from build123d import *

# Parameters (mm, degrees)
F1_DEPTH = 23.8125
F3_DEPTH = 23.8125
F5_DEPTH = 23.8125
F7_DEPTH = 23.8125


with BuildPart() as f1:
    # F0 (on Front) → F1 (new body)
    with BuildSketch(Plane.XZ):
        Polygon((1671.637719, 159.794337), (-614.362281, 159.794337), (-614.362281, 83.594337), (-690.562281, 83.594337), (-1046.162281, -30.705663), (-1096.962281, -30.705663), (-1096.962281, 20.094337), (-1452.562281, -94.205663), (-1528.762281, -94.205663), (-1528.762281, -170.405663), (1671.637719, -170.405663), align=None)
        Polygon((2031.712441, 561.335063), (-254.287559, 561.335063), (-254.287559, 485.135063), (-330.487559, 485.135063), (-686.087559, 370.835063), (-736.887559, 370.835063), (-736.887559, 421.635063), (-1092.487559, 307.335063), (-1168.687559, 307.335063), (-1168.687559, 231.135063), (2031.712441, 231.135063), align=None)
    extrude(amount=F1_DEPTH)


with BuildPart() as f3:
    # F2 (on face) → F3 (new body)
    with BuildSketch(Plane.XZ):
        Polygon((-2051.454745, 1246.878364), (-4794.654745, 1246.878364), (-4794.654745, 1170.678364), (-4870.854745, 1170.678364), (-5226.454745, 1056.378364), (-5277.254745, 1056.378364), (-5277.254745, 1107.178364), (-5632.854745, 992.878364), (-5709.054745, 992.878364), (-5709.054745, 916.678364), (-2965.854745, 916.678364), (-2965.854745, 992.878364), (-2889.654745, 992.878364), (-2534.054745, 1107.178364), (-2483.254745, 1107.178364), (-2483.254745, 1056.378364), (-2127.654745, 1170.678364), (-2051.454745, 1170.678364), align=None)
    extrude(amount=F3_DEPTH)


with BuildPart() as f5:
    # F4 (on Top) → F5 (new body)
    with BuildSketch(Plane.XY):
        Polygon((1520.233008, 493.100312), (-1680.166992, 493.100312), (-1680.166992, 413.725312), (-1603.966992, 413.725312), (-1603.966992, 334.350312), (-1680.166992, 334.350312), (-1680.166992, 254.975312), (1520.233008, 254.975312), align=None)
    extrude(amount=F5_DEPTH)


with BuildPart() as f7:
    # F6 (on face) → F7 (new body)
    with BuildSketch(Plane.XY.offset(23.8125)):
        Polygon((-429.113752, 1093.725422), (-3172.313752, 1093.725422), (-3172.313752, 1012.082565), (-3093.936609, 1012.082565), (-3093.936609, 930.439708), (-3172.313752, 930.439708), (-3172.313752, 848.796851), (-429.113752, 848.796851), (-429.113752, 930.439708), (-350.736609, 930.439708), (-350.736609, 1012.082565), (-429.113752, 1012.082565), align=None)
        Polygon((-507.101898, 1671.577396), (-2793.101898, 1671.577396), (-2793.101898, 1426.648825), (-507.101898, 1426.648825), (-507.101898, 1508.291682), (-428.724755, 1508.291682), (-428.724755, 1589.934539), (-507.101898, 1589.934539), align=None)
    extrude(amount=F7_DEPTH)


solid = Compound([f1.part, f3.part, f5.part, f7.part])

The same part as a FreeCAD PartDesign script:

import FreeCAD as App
import Part
import Sketcher

V = App.Vector
Q = App.Units.Quantity


def add_polygon(sketch, points):
    """Adds a closed chain of lines whose ends are joined by coincident constraints."""
    first, n = sketch.GeometryCount, len(points)
    for a, b in zip(points, points[1:] + points[:1]):
        sketch.addGeometry(Part.LineSegment(App.Vector(*a, 0), App.Vector(*b, 0)), False)
    for i in range(n):
        sketch.addConstraint(Sketcher.Constraint("Coincident", first + i, 2, first + (i + 1) % n, 1))

doc = App.newDocument("Part")
params = doc.addObject("Spreadsheet::Sheet", "Params")
for row, (alias, value) in enumerate([
    ("sketch1_width", "90 in"),
    ("sketch1_width2", "3 in"),
    ("sketch1_width3", "2 in"),
    ("sketch1_width4", "126 in"),
    ("sketch1_height", "13 in"),
    ("pad1_length", "0.9375 in"),
    ("sketch2_width", "108 in"),
    ("sketch2_width2", "3 in"),
    ("sketch2_width3", "2 in"),
    ("pad2_length", "0.9375 in"),
    ("sketch3_width", "126 in"),
    ("sketch3_width2", "3 in"),
    ("sketch3_height", "3.125 in"),
    ("pad3_length", "0.9375 in"),
    ("sketch4_width", "108 in"),
    ("sketch4_width2", "90 in"),
    ("pad4_length", "0.9375 in"),
], start=1):
    params.set(f"A{row}", alias)
    params.set(f"B{row}", "=" + value)
    params.setAlias(f"B{row}", alias)

body = doc.addObject("PartDesign::Body", "Body")
body.AllowCompound = True

# Sketch on XZ plane
sketch1 = doc.addObject("Sketcher::SketchObject", "Sketch")
body.addObject(sketch1)
sketch1.AttachmentSupport = (doc.XZ_Plane, [""])
sketch1.MapMode = "FlatFace"
add_polygon(sketch1, [(1672, 160), (-614, 160), (-614, 84), (-691, 84), (-1046, -31), (-1097, -31), (-1097, 20), (-1453, -94), (-1529, -94), (-1529, -170), (1672, -170)])  # lines 0-10
add_polygon(sketch1, [(2032, 561), (-254, 561), (-254, 485), (-330, 485), (-686, 371), (-737, 371), (-737, 422), (-1092, 307), (-1169, 307), (-1169, 231), (2032, 231)])  # lines 11-21
sketch1.addConstraint(Sketcher.Constraint("Horizontal", 0))
sketch1.addConstraint(Sketcher.Constraint("Vertical", 1))
sketch1.addConstraint(Sketcher.Constraint("Horizontal", 2))
sketch1.addConstraint(Sketcher.Constraint("Horizontal", 4))
sketch1.addConstraint(Sketcher.Constraint("Vertical", 5))
sketch1.addConstraint(Sketcher.Constraint("Horizontal", 7))
sketch1.addConstraint(Sketcher.Constraint("Vertical", 8))
sketch1.addConstraint(Sketcher.Constraint("Horizontal", 9))
sketch1.addConstraint(Sketcher.Constraint("Vertical", 10))
sketch1.addConstraint(Sketcher.Constraint("Horizontal", 11))
sketch1.addConstraint(Sketcher.Constraint("Vertical", 12))
sketch1.addConstraint(Sketcher.Constraint("Horizontal", 13))
sketch1.addConstraint(Sketcher.Constraint("Horizontal", 15))
sketch1.addConstraint(Sketcher.Constraint("Vertical", 16))
sketch1.addConstraint(Sketcher.Constraint("Horizontal", 18))
sketch1.addConstraint(Sketcher.Constraint("Vertical", 19))
sketch1.addConstraint(Sketcher.Constraint("Horizontal", 20))
sketch1.addConstraint(Sketcher.Constraint("Vertical", 21))
sketch1.addConstraint(Sketcher.Constraint("Parallel", 3, 6))
sketch1.addConstraint(Sketcher.Constraint("Parallel", 6, 14))
sketch1.addConstraint(Sketcher.Constraint("Parallel", 14, 17))
sketch1.addConstraint(Sketcher.Constraint("Equal", 2, 7))
sketch1.addConstraint(Sketcher.Constraint("Equal", 0, 11))
sketch1.addConstraint(Sketcher.Constraint("Equal", 7, 13))
sketch1.addConstraint(Sketcher.Constraint("Equal", 4, 15))
sketch1.addConstraint(Sketcher.Constraint("Equal", 13, 18))
sketch1.addConstraint(Sketcher.Constraint("Equal", 9, 20))
sketch1.addConstraint(Sketcher.Constraint("Equal", 18, 1))
sketch1.addConstraint(Sketcher.Constraint("Equal", 15, 5))
sketch1.addConstraint(Sketcher.Constraint("Equal", 1, 8))
sketch1.addConstraint(Sketcher.Constraint("Equal", 8, 12))
sketch1.addConstraint(Sketcher.Constraint("Equal", 5, 16))
sketch1.addConstraint(Sketcher.Constraint("Equal", 12, 19))
sketch1.addConstraint(Sketcher.Constraint("Equal", 3, 6))
sketch1.addConstraint(Sketcher.Constraint("Equal", 6, 14))
sketch1.addConstraint(Sketcher.Constraint("DistanceX", 0, 2, 0, 1, Q("90 in")))
sketch1.addConstraint(Sketcher.Constraint("DistanceX", 2, 2, 2, 1, Q("3 in")))
sketch1.addConstraint(Sketcher.Constraint("DistanceX", 4, 2, 4, 1, Q("2 in")))
sketch1.addConstraint(Sketcher.Constraint("DistanceX", 9, 1, 9, 2, Q("126 in")))
sketch1.addConstraint(Sketcher.Constraint("DistanceY", 10, 1, 10, 2, Q("13 in")))
sketch1.addConstraint(Sketcher.Constraint("DistanceX", 0, 2, -1, 1, 614.362281))
sketch1.addConstraint(Sketcher.Constraint("DistanceX", 11, 2, -1, 1, 254.287559))
sketch1.addConstraint(Sketcher.Constraint("DistanceY", -1, 1, 0, 2, 159.794337))
sketch1.addConstraint(Sketcher.Constraint("DistanceY", -1, 1, 11, 2, 561.335063))
sketch1.setExpression("Constraints[57]", "Params.sketch1_width")
sketch1.setExpression("Constraints[58]", "Params.sketch1_width2")
sketch1.setExpression("Constraints[59]", "Params.sketch1_width3")
sketch1.setExpression("Constraints[60]", "Params.sketch1_width4")
sketch1.setExpression("Constraints[61]", "Params.sketch1_height")
pad1 = doc.addObject("PartDesign::Pad", "Pad")
body.addObject(pad1)
pad1.Profile = sketch1
pad1.setExpression("Length", "Params.pad1_length")
body2 = doc.addObject("PartDesign::Body", "Body001")

# Sketch on XZ plane
sketch2 = doc.addObject("Sketcher::SketchObject", "Sketch001")
body2.addObject(sketch2)
sketch2.AttachmentSupport = (doc.getObject("XZ_Plane001"), [""])
sketch2.MapMode = "FlatFace"
add_polygon(sketch2, [(-2051, 1247), (-4795, 1247), (-4795, 1171), (-4871, 1171), (-5226, 1056), (-5277, 1056), (-5277, 1107), (-5633, 993), (-5709, 993), (-5709, 917), (-2966, 917), (-2966, 993), (-2890, 993), (-2534, 1107), (-2483, 1107), (-2483, 1056), (-2128, 1171), (-2051, 1171)])  # lines 0-17
sketch2.addConstraint(Sketcher.Constraint("Horizontal", 0))
sketch2.addConstraint(Sketcher.Constraint("Vertical", 1))
sketch2.addConstraint(Sketcher.Constraint("Horizontal", 2))
sketch2.addConstraint(Sketcher.Constraint("Horizontal", 4))
sketch2.addConstraint(Sketcher.Constraint("Vertical", 5))
sketch2.addConstraint(Sketcher.Constraint("Horizontal", 7))
sketch2.addConstraint(Sketcher.Constraint("Vertical", 8))
sketch2.addConstraint(Sketcher.Constraint("Horizontal", 9))
sketch2.addConstraint(Sketcher.Constraint("Vertical", 10))
sketch2.addConstraint(Sketcher.Constraint("Horizontal", 11))
sketch2.addConstraint(Sketcher.Constraint("Horizontal", 13))
sketch2.addConstraint(Sketcher.Constraint("Vertical", 14))
sketch2.addConstraint(Sketcher.Constraint("Horizontal", 16))
sketch2.addConstraint(Sketcher.Constraint("Vertical", 17))
sketch2.addConstraint(Sketcher.Constraint("Parallel", 3, 6))
sketch2.addConstraint(Sketcher.Constraint("Parallel", 6, 12))
sketch2.addConstraint(Sketcher.Constraint("Parallel", 12, 15))
sketch2.addConstraint(Sketcher.Constraint("Horizontal", 7, 2, 10, 2))
sketch2.addConstraint(Sketcher.Constraint("Horizontal", 5, 2, 12, 2))
sketch2.addConstraint(Sketcher.Constraint("Horizontal", 4, 2, 14, 2))
sketch2.addConstraint(Sketcher.Constraint("Horizontal", 2, 2, 15, 2))
sketch2.addConstraint(Sketcher.Constraint("Equal", 2, 7))
sketch2.addConstraint(Sketcher.Constraint("Equal", 0, 9))
sketch2.addConstraint(Sketcher.Constraint("Equal", 7, 11))
sketch2.addConstraint(Sketcher.Constraint("Equal", 4, 13))
sketch2.addConstraint(Sketcher.Constraint("Equal", 16, 1))
sketch2.addConstraint(Sketcher.Constraint("Equal", 13, 5))
sketch2.addConstraint(Sketcher.Constraint("Equal", 1, 8))
sketch2.addConstraint(Sketcher.Constraint("Equal", 3, 6))
sketch2.addConstraint(Sketcher.Constraint("DistanceX", 0, 2, 0, 1, Q("108 in")))
sketch2.addConstraint(Sketcher.Constraint("DistanceX", 2, 2, 2, 1, Q("3 in")))
sketch2.addConstraint(Sketcher.Constraint("DistanceX", 4, 2, 4, 1, Q("2 in")))
sketch2.addConstraint(Sketcher.Constraint("DistanceX", 3, 2, 2, 2, Q("14 in")))
sketch2.addConstraint(Sketcher.Constraint("DistanceY", 6, 2, 2, 2, Q("7 in")))
sketch2.addConstraint(Sketcher.Constraint("DistanceX", 0, 2, -1, 1, 4794.654745))
sketch2.addConstraint(Sketcher.Constraint("DistanceY", -1, 1, 0, 2, 1246.878364))
sketch2.setExpression("Constraints[47]", "Params.sketch2_width")
sketch2.setExpression("Constraints[48]", "Params.sketch2_width2")
sketch2.setExpression("Constraints[49]", "Params.sketch2_width3")
pad2 = doc.addObject("PartDesign::Pad", "Pad001")
body2.addObject(pad2)
pad2.Profile = sketch2
pad2.setExpression("Length", "Params.pad2_length")
body3 = doc.addObject("PartDesign::Body", "Body002")

# Sketch on XY plane
sketch3 = doc.addObject("Sketcher::SketchObject", "Sketch002")
body3.addObject(sketch3)
sketch3.AttachmentSupport = (doc.getObject("XY_Plane002"), [""])
sketch3.MapMode = "FlatFace"
add_polygon(sketch3, [(1520, 493), (-1680, 493), (-1680, 414), (-1604, 414), (-1604, 334), (-1680, 334), (-1680, 255), (1520, 255)])  # lines 0-7
sketch3.addConstraint(Sketcher.Constraint("Horizontal", 0))
sketch3.addConstraint(Sketcher.Constraint("Vertical", 1))
sketch3.addConstraint(Sketcher.Constraint("Horizontal", 2))
sketch3.addConstraint(Sketcher.Constraint("Vertical", 3))
sketch3.addConstraint(Sketcher.Constraint("Horizontal", 4))
sketch3.addConstraint(Sketcher.Constraint("Vertical", 5))
sketch3.addConstraint(Sketcher.Constraint("Horizontal", 6))
sketch3.addConstraint(Sketcher.Constraint("Vertical", 7))
sketch3.addConstraint(Sketcher.Constraint("Vertical", 1, 2, 4, 2))
sketch3.addConstraint(Sketcher.Constraint("Equal", 1, 3))
sketch3.addConstraint(Sketcher.Constraint("Equal", 3, 5))
sketch3.addConstraint(Sketcher.Constraint("DistanceX", 0, 2, 0, 1, Q("126 in")))
sketch3.addConstraint(Sketcher.Constraint("DistanceX", 2, 1, 2, 2, Q("3 in")))
sketch3.addConstraint(Sketcher.Constraint("DistanceY", 1, 2, 1, 1, Q("3.125 in")))
sketch3.addConstraint(Sketcher.Constraint("DistanceX", 0, 2, -1, 1, 1680.166992))
sketch3.addConstraint(Sketcher.Constraint("DistanceY", -1, 1, 0, 2, 493.100312))
sketch3.setExpression("Constraints[19]", "Params.sketch3_width")
sketch3.setExpression("Constraints[20]", "Params.sketch3_width2")
sketch3.setExpression("Constraints[21]", "Params.sketch3_height")
pad3 = doc.addObject("PartDesign::Pad", "Pad002")
body3.addObject(pad3)
pad3.Profile = sketch3
pad3.setExpression("Length", "Params.pad3_length")
body4 = doc.addObject("PartDesign::Body", "Body003")
body4.AllowCompound = True

# Sketch on XY plane
sketch4 = doc.addObject("Sketcher::SketchObject", "Sketch003")
body4.addObject(sketch4)
sketch4.AttachmentSupport = (doc.getObject("XY_Plane003"), [""])
sketch4.MapMode = "FlatFace"
sketch4.AttachmentOffset = App.Placement(V(0, 0, 0.9375 * 25.4), App.Rotation())
add_polygon(sketch4, [(-429, 1094), (-3172, 1094), (-3172, 1012), (-3094, 1012), (-3094, 930), (-3172, 930), (-3172, 849), (-429, 849), (-429, 930), (-351, 930), (-351, 1012), (-429, 1012)])  # lines 0-11
add_polygon(sketch4, [(-507, 1672), (-2793, 1672), (-2793, 1427), (-507, 1427), (-507, 1508), (-429, 1508), (-429, 1590), (-507, 1590)])  # lines 12-19
sketch4.addConstraint(Sketcher.Constraint("Horizontal", 0))
sketch4.addConstraint(Sketcher.Constraint("Vertical", 1))
sketch4.addConstraint(Sketcher.Constraint("Horizontal", 2))
sketch4.addConstraint(Sketcher.Constraint("Vertical", 3))
sketch4.addConstraint(Sketcher.Constraint("Horizontal", 4))
sketch4.addConstraint(Sketcher.Constraint("Vertical", 5))
sketch4.addConstraint(Sketcher.Constraint("Horizontal", 6))
sketch4.addConstraint(Sketcher.Constraint("Vertical", 7))
sketch4.addConstraint(Sketcher.Constraint("Horizontal", 8))
sketch4.addConstraint(Sketcher.Constraint("Vertical", 9))
sketch4.addConstraint(Sketcher.Constraint("Horizontal", 10))
sketch4.addConstraint(Sketcher.Constraint("Vertical", 11))
sketch4.addConstraint(Sketcher.Constraint("Horizontal", 12))
sketch4.addConstraint(Sketcher.Constraint("Vertical", 13))
sketch4.addConstraint(Sketcher.Constraint("Horizontal", 14))
sketch4.addConstraint(Sketcher.Constraint("Vertical", 15))
sketch4.addConstraint(Sketcher.Constraint("Horizontal", 16))
sketch4.addConstraint(Sketcher.Constraint("Vertical", 17))
sketch4.addConstraint(Sketcher.Constraint("Horizontal", 18))
sketch4.addConstraint(Sketcher.Constraint("Vertical", 19))
sketch4.addConstraint(Sketcher.Constraint("Horizontal", 4, 2, 7, 2))
sketch4.addConstraint(Sketcher.Constraint("Horizontal", 2, 2, 9, 2))
sketch4.addConstraint(Sketcher.Constraint("Vertical", 1, 2, 4, 2))
sketch4.addConstraint(Sketcher.Constraint("Vertical", 7, 2, 10, 2))
sketch4.addConstraint(Sketcher.Constraint("Vertical", 15, 2, 18, 2))
sketch4.addConstraint(Sketcher.Constraint("Equal", 4, 8))
sketch4.addConstraint(Sketcher.Constraint("Equal", 10, 16))
sketch4.addConstraint(Sketcher.Constraint("Equal", 1, 3))
sketch4.addConstraint(Sketcher.Constraint("Equal", 3, 5))
sketch4.addConstraint(Sketcher.Constraint("Equal", 11, 15))
sketch4.addConstraint(Sketcher.Constraint("Equal", 15, 17))
sketch4.addConstraint(Sketcher.Constraint("Equal", 17, 19))
sketch4.addConstraint(Sketcher.Constraint("DistanceX", 0, 2, 0, 1, Q("108 in")))
sketch4.addConstraint(Sketcher.Constraint("DistanceX", 12, 2, 12, 1, Q("90 in")))
sketch4.addConstraint(Sketcher.Constraint("DistanceY", 13, 2, 13, 1, 244.928571))
sketch4.addConstraint(Sketcher.Constraint("DistanceX", 14, 2, -1, 1, 507.101898))
sketch4.addConstraint(Sketcher.Constraint("DistanceX", 2, 1, 2, 2, 78.377143))
sketch4.addConstraint(Sketcher.Constraint("DistanceY", -1, 1, 0, 2, 1093.725422))
sketch4.addConstraint(Sketcher.Constraint("DistanceX", 2, 2, -1, 1, 3093.936609))
sketch4.addConstraint(Sketcher.Constraint("DistanceY", -1, 1, 15, 2, 1508.291682))
sketch4.setExpression("Constraints[52]", "Params.sketch4_width")
sketch4.setExpression("Constraints[53]", "Params.sketch4_width2")
pad4 = doc.addObject("PartDesign::Pad", "Pad003")
body4.addObject(pad4)
pad4.Profile = sketch4
pad4.setExpression("Length", "Params.pad4_length")

doc.recompute()
